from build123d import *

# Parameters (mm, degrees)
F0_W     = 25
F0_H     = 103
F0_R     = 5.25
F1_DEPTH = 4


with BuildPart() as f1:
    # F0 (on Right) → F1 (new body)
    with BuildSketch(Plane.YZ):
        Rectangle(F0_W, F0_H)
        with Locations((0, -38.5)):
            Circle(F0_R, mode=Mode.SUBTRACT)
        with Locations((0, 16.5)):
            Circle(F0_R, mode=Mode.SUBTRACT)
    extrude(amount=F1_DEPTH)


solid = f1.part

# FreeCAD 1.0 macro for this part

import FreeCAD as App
import Part
import Sketcher

V = App.Vector
Q = App.Units.Quantity


def add_polygon(sketch, points):
    """Adds a closed chain of lines whose ends are joined by coincident constraints."""
    first, n = sketch.GeometryCount, len(points)
    for a, b in zip(points, points[1:] + points[:1]):
        sketch.addGeometry(Part.LineSegment(App.Vector(*a, 0), App.Vector(*b, 0)), False)
    for i in range(n):
        sketch.addConstraint(Sketcher.Constraint("Coincident", first + i, 2, first + (i + 1) % n, 1))

doc = App.newDocument("Part")
body = doc.addObject("PartDesign::Body", "Body")

# Sketch on YZ plane
sketch1 = body.newObject("Sketcher::SketchObject", "Sketch")
sketch1.AttachmentSupport = (doc.getObject("YZ_Plane"), [""])
sketch1.MapMode = "FlatFace"
add_polygon(sketch1, [(-12, 52), (-12, -52), (12, -52), (12, 52)])  # lines 0-3
sketch1.addGeometry(Part.Circle(V(0, -38, 0), V(0, 0, 1), 5), False)  # 4
sketch1.addGeometry(Part.Circle(V(0, 16, 0), V(0, 0, 1), 5), False)  # 5
sketch1.addConstraint([
    Sketcher.Constraint("Vertical", 0),
    Sketcher.Constraint("Horizontal", 1),
    Sketcher.Constraint("Vertical", 2),
    Sketcher.Constraint("Horizontal", 3),
    Sketcher.Constraint("Equal", 4, 5),
    Sketcher.Constraint("Symmetric", 0, 2, 2, 2, -1, 1),
    Sketcher.Constraint("PointOnObject", 4, 3, -2),
    Sketcher.Constraint("PointOnObject", 5, 3, -2),
    Sketcher.Constraint("Diameter", 4, Q("10.5 mm")),
    Sketcher.Constraint("DistanceX", 1, 1, 1, 2, Q("25 mm")),
    Sketcher.Constraint("DistanceY", 0, 2, 0, 1, Q("103 mm")),
    Sketcher.Constraint("DistanceY", 4, 3, 5, 3, Q("55 mm")),
    Sketcher.Constraint("DistanceY", 0, 2, 4, 3, Q("13 mm")),
])
pad1 = body.newObject("PartDesign::Pad", "Pad")
pad1.Profile = sketch1
pad1.Length = 4

doc.recompute()
